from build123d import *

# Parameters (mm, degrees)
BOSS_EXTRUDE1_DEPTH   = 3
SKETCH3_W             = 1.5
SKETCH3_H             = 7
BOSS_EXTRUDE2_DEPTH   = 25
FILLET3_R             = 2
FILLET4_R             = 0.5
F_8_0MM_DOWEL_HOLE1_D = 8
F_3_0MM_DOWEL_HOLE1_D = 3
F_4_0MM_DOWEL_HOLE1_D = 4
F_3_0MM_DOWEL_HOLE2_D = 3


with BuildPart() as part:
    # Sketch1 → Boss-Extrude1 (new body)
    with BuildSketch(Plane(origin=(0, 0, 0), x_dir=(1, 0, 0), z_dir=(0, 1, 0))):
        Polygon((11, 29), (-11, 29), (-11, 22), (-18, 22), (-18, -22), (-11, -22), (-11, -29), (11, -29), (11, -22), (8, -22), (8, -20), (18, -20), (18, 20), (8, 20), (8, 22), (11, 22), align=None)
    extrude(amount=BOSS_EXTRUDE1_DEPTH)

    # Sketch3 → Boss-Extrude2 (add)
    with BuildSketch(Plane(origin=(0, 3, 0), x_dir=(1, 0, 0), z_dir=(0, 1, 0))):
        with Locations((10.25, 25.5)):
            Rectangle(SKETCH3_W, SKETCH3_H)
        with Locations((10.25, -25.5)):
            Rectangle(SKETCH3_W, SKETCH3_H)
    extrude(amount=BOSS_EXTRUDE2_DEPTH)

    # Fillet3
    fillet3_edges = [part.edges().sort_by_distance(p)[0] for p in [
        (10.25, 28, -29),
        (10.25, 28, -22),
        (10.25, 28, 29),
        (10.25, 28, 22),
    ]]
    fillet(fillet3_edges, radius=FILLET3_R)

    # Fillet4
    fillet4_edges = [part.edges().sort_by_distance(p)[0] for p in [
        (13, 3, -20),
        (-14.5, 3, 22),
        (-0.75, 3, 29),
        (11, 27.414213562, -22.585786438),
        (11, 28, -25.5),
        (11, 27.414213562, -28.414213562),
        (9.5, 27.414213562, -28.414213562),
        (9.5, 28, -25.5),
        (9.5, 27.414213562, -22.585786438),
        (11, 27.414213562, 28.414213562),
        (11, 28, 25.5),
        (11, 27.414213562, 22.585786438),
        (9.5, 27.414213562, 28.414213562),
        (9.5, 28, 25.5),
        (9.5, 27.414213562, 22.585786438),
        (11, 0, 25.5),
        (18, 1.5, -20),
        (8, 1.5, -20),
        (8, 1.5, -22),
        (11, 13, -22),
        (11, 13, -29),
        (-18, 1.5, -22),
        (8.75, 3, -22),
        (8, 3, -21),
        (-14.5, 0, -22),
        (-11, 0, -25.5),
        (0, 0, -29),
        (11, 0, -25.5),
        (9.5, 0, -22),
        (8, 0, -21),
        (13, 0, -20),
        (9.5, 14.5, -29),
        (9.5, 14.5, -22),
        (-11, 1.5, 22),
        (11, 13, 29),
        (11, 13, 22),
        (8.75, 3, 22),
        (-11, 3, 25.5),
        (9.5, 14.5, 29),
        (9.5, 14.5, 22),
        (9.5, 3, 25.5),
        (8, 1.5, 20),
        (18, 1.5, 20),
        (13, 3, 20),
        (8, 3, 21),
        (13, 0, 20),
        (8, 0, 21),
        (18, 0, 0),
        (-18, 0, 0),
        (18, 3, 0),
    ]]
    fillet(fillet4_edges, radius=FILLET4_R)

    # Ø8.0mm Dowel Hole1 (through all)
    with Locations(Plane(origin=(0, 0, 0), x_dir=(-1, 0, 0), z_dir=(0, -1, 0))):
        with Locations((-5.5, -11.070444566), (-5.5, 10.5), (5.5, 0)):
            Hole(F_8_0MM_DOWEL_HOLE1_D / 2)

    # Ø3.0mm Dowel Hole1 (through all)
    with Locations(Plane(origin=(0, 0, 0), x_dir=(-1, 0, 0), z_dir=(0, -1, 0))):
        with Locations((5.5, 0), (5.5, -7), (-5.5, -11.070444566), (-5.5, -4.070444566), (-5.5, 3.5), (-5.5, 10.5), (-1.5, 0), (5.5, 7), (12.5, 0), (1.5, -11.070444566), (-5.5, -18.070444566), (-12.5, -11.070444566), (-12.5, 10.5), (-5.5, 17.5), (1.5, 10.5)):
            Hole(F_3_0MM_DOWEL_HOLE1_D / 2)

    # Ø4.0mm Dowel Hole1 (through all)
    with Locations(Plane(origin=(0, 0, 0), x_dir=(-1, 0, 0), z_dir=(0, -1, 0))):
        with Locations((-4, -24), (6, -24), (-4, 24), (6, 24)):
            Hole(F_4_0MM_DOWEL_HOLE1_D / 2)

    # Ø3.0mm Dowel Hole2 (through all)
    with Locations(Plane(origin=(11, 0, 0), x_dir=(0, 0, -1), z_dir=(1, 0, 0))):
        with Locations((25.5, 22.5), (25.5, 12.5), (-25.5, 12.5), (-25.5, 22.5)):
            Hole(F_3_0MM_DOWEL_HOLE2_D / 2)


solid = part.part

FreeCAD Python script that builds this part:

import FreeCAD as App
import Part
import Sketcher

V = App.Vector
Q = App.Units.Quantity


def edges_at(feature, points):
    """Names of the edges that pass closest to the given points."""
    edges = feature.Shape.Edges
    near = lambda p: min(range(len(edges)), key=lambda i: edges[i].distToShape(Part.Vertex(*p))[0])
    return sorted({f"Edge{near(p) + 1}" for p in points})

doc = App.newDocument("Part")
body = doc.addObject("PartDesign::Body", "Body")

# Sketch on XZ plane
sketch1 = body.newObject("Sketcher::SketchObject", "Sketch")
sketch1.AttachmentSupport = (doc.getObject("XZ_Plane"), [""])
sketch1.MapMode = "FlatFace"
sketch1.addGeometry(Part.LineSegment(V(11, -29, 0), V(-11, -29, 0)), False)
sketch1.addGeometry(Part.LineSegment(V(-11, -29, 0), V(-11, -22, 0)), False)
sketch1.addGeometry(Part.LineSegment(V(-11, -22, 0), V(-18, -22, 0)), False)
sketch1.addGeometry(Part.LineSegment(V(-18, -22, 0), V(-18, 22, 0)), False)
sketch1.addGeometry(Part.LineSegment(V(-18, 22, 0), V(-11, 22, 0)), False)
sketch1.addGeometry(Part.LineSegment(V(-11, 22, 0), V(-11, 29, 0)), False)
sketch1.addGeometry(Part.LineSegment(V(-11, 29, 0), V(11, 29, 0)), False)
sketch1.addGeometry(Part.LineSegment(V(11, 29, 0), V(11, 22, 0)), False)
sketch1.addGeometry(Part.LineSegment(V(11, 22, 0), V(8, 22, 0)), False)
sketch1.addGeometry(Part.LineSegment(V(8, 22, 0), V(8, 20, 0)), False)
sketch1.addGeometry(Part.LineSegment(V(8, 20, 0), V(18, 20, 0)), False)
sketch1.addGeometry(Part.LineSegment(V(18, 20, 0), V(18, -20, 0)), False)
sketch1.addGeometry(Part.LineSegment(V(18, -20, 0), V(8, -20, 0)), False)
sketch1.addGeometry(Part.LineSegment(V(8, -20, 0), V(8, -22, 0)), False)
sketch1.addGeometry(Part.LineSegment(V(8, -22, 0), V(11, -22, 0)), False)
sketch1.addGeometry(Part.LineSegment(V(11, -22, 0), V(11, -29, 0)), False)
sketch1.addConstraint(Sketcher.Constraint("Coincident", 0, 2, 1, 1))
sketch1.addConstraint(Sketcher.Constraint("Coincident", 1, 2, 2, 1))
sketch1.addConstraint(Sketcher.Constraint("Coincident", 2, 2, 3, 1))
sketch1.addConstraint(Sketcher.Constraint("Coincident", 3, 2, 4, 1))
sketch1.addConstraint(Sketcher.Constraint("Coincident", 4, 2, 5, 1))
sketch1.addConstraint(Sketcher.Constraint("Coincident", 5, 2, 6, 1))
sketch1.addConstraint(Sketcher.Constraint("Coincident", 6, 2, 7, 1))
sketch1.addConstraint(Sketcher.Constraint("Coincident", 7, 2, 8, 1))
sketch1.addConstraint(Sketcher.Constraint("Coincident", 8, 2, 9, 1))
sketch1.addConstraint(Sketcher.Constraint("Coincident", 9, 2, 10, 1))
sketch1.addConstraint(Sketcher.Constraint("Coincident", 10, 2, 11, 1))
sketch1.addConstraint(Sketcher.Constraint("Coincident", 11, 2, 12, 1))
sketch1.addConstraint(Sketcher.Constraint("Coincident", 12, 2, 13, 1))
sketch1.addConstraint(Sketcher.Constraint("Coincident", 13, 2, 14, 1))
sketch1.addConstraint(Sketcher.Constraint("Coincident", 14, 2, 15, 1))
sketch1.addConstraint(Sketcher.Constraint("Coincident", 15, 2, 0, 1))
sketch1.addConstraint(Sketcher.Constraint("Horizontal", 0))
sketch1.addConstraint(Sketcher.Constraint("Vertical", 1))
sketch1.addConstraint(Sketcher.Constraint("Horizontal", 2))
sketch1.addConstraint(Sketcher.Constraint("Vertical", 3))
sketch1.addConstraint(Sketcher.Constraint("Horizontal", 4))
sketch1.addConstraint(Sketcher.Constraint("Vertical", 5))
sketch1.addConstraint(Sketcher.Constraint("Horizontal", 6))
sketch1.addConstraint(Sketcher.Constraint("Vertical", 7))
sketch1.addConstraint(Sketcher.Constraint("Horizontal", 8))
sketch1.addConstraint(Sketcher.Constraint("Vertical", 9))
sketch1.addConstraint(Sketcher.Constraint("Horizontal", 10))
sketch1.addConstraint(Sketcher.Constraint("Vertical", 11))
sketch1.addConstraint(Sketcher.Constraint("Horizontal", 12))
sketch1.addConstraint(Sketcher.Constraint("Vertical", 13))
sketch1.addConstraint(Sketcher.Constraint("Horizontal", 14))
sketch1.addConstraint(Sketcher.Constraint("Vertical", 15))
sketch1.addConstraint(Sketcher.Constraint("Symmetric", 0, 2, 6, 2, -1, 1))
sketch1.addConstraint(Sketcher.Constraint("Symmetric", 4, 2, 14, 2, -1, 1))
sketch1.addConstraint(Sketcher.Constraint("Symmetric", 4, 2, 7, 2, -2))
sketch1.addConstraint(Sketcher.Constraint("Symmetric", 9, 2, 12, 2, -1))
sketch1.addConstraint(Sketcher.Constraint("Horizontal", 2, 2, 13, 2))
sketch1.addConstraint(Sketcher.Constraint("Equal", 4, 1))
sketch1.addConstraint(Sketcher.Constraint("DistanceX", 0, 2, 0, 1, Q("22 mm")))
sketch1.addConstraint(Sketcher.Constraint("DistanceX", 2, 2, 2, 1, Q("7 mm")))
sketch1.addConstraint(Sketcher.Constraint("DistanceX", 8, 2, 8, 1, Q("3 mm")))
sketch1.addConstraint(Sketcher.Constraint("DistanceX", 10, 1, 10, 2, Q("10 mm")))
sketch1.addConstraint(Sketcher.Constraint("DistanceY", 3, 1, 3, 2, Q("44 mm")))
sketch1.addConstraint(Sketcher.Constraint("DistanceY", 9, 2, 9, 1, Q("2 mm")))
pad1 = body.newObject("PartDesign::Pad", "Pad")
pad1.Profile = sketch1
pad1.Length = 3
pad1.Reversed = True

# Sketch on XZ plane
sketch2 = body.newObject("Sketcher::SketchObject", "Sketch001")
sketch2.AttachmentSupport = (doc.getObject("XZ_Plane"), [""])
sketch2.MapMode = "FlatFace"
sketch2.AttachmentOffset = App.Placement(V(0, 0, -3), App.Rotation())
sketch2.addGeometry(Part.LineSegment(V(9.5, -29, 0), V(9.5, -22, 0)), False)
sketch2.addGeometry(Part.LineSegment(V(9.5, -22, 0), V(11, -22, 0)), False)
sketch2.addGeometry(Part.LineSegment(V(11, -22, 0), V(11, -29, 0)), False)
sketch2.addGeometry(Part.LineSegment(V(11, -29, 0), V(9.5, -29, 0)), False)
sketch2.addGeometry(Part.LineSegment(V(9.5, 22, 0), V(9.5, 29, 0)), False)
sketch2.addGeometry(Part.LineSegment(V(9.5, 29, 0), V(11, 29, 0)), False)
sketch2.addGeometry(Part.LineSegment(V(11, 29, 0), V(11, 22, 0)), False)
sketch2.addGeometry(Part.LineSegment(V(11, 22, 0), V(9.5, 22, 0)), False)
sketch2.addConstraint(Sketcher.Constraint("Coincident", 0, 2, 1, 1))
sketch2.addConstraint(Sketcher.Constraint("Coincident", 1, 2, 2, 1))
sketch2.addConstraint(Sketcher.Constraint("Coincident", 2, 2, 3, 1))
sketch2.addConstraint(Sketcher.Constraint("Coincident", 3, 2, 0, 1))
sketch2.addConstraint(Sketcher.Constraint("Coincident", 4, 2, 5, 1))
sketch2.addConstraint(Sketcher.Constraint("Coincident", 5, 2, 6, 1))
sketch2.addConstraint(Sketcher.Constraint("Coincident", 6, 2, 7, 1))
sketch2.addConstraint(Sketcher.Constraint("Coincident", 7, 2, 4, 1))
sketch2.addConstraint(Sketcher.Constraint("Vertical", 0))
sketch2.addConstraint(Sketcher.Constraint("Horizontal", 1))
sketch2.addConstraint(Sketcher.Constraint("Vertical", 2))
sketch2.addConstraint(Sketcher.Constraint("Horizontal", 3))
sketch2.addConstraint(Sketcher.Constraint("Vertical", 4))
sketch2.addConstraint(Sketcher.Constraint("Horizontal", 5))
sketch2.addConstraint(Sketcher.Constraint("Vertical", 6))
sketch2.addConstraint(Sketcher.Constraint("Horizontal", 7))
sketch2.addConstraint(Sketcher.Constraint("Symmetric", 3, 2, 4, 2, -1))
sketch2.addConstraint(Sketcher.Constraint("Symmetric", 1, 2, 6, 2, -1))
sketch2.addConstraint(Sketcher.Constraint("DistanceY", 0, 1, 0, 2, Q("7 mm")))
sketch2.addConstraint(Sketcher.Constraint("DistanceX", 1, 1, 1, 2, Q("1.5 mm")))
sketch2.addConstraint(Sketcher.Constraint("DistanceY", 0, 2, -1, 1, Q("22 mm")))
sketch2.addConstraint(Sketcher.Constraint("DistanceX", -1, 1, 1, 2, Q("11 mm")))
pad2 = body.newObject("PartDesign::Pad", "Pad001")
pad2.Profile = sketch2
pad2.Length = 25
pad2.Reversed = True
doc.recompute()

fillet = body.newObject("PartDesign::Fillet", "Fillet")
fillet.Base = (pad2, edges_at(pad2, [
    (10.25, 28, -29),
    (10.25, 28, -22),
    (10.25, 28, 29),
    (10.25, 28, 22),
]))
fillet.Radius = 2
doc.recompute()

fillet2 = body.newObject("PartDesign::Fillet", "Fillet001")
fillet2.Base = (fillet, edges_at(fillet, [
    (13, 3, -20),
    (-14.5, 3, 22),
    (-0.75, 3, 29),
    (11, 27.414, -22.586),
    (11, 28, -25.5),
    (11, 27.414, -28.414),
    (9.5, 27.414, -28.414),
    (9.5, 28, -25.5),
    (9.5, 27.414, -22.586),
    (11, 27.414, 28.414),
    (11, 28, 25.5),
    (11, 27.414, 22.586),
    (9.5, 27.414, 28.414),
    (9.5, 28, 25.5),
    (9.5, 27.414, 22.586),
    (11, 0, 25.5),
    (18, 1.5, -20),
    (8, 1.5, -20),
    (8, 1.5, -22),
    (11, 13, -22),
    (11, 13, -29),
    (-18, 1.5, -22),
    (8.75, 3, -22),
    (8, 3, -21),
    (-14.5, 0, -22),
    (-11, 0, -25.5),
    (0, 0, -29),
    (11, 0, -25.5),
    (9.5, 0, -22),
    (8, 0, -21),
    (13, 0, -20),
    (9.5, 14.5, -29),
    (9.5, 14.5, -22),
    (-11, 1.5, 22),
    (11, 13, 29),
    (11, 13, 22),
    (8.75, 3, 22),
    (-11, 3, 25.5),
    (9.5, 14.5, 29),
    (9.5, 14.5, 22),
    (9.5, 3, 25.5),
    (8, 1.5, 20),
    (18, 1.5, 20),
    (13, 3, 20),
    (8, 3, 21),
    (13, 0, 20),
    (8, 0, 21),
    (18, 0, 0),
    (-18, 0, 0),
    (18, 3, 0),
]))
fillet2.Radius = 0.5

# Sketch on XZ plane
sketch3 = body.newObject("Sketcher::SketchObject", "Sketch002")
sketch3.AttachmentSupport = (doc.getObject("XZ_Plane"), [""])
sketch3.MapMode = "FlatFace"
sketch3.addGeometry(Part.Circle(V(5.5, 11.1, 0), V(0, 0, 1), 4), False)
sketch3.addGeometry(Part.Circle(V(5.5, -10.5, 0), V(0, 0, 1), 4), False)
sketch3.addGeometry(Part.Circle(V(-5.5, 0, 0), V(0, 0, 1), 4), False)
sketch3.addConstraint(Sketcher.Constraint("Equal", 0, 1))
sketch3.addConstraint(Sketcher.Constraint("Equal", 1, 2))
sketch3.addConstraint(Sketcher.Constraint("PointOnObject", 2, 3, -1))
sketch3.addConstraint(Sketcher.Constraint("Vertical", 0, 3, 1, 3))
sketch3.addConstraint(Sketcher.Constraint("Diameter", 0, Q("8 mm")))
sketch3.addConstraint(Sketcher.Constraint("DistanceX", 2, 3, 1, 3, Q("11 mm")))
sketch3.addConstraint(Sketcher.Constraint("DistanceX", -1, 1, 0, 3, Q("5.5 mm")))
sketch3.addConstraint(Sketcher.Constraint("DistanceY", 1, 3, -1, 1, Q("10.5 mm")))
sketch3.addConstraint(Sketcher.Constraint("DistanceY", -1, 1, 0, 3, Q("11.070445 mm")))
doc.recompute()
hole = body.newObject("PartDesign::Hole", "Hole")
hole.Profile = sketch3
hole.ThreadType = "None"
hole.Diameter = 8
hole.DepthType = "ThroughAll"

# Sketch on XZ plane
sketch4 = body.newObject("Sketcher::SketchObject", "Sketch003")
sketch4.AttachmentSupport = (doc.getObject("XZ_Plane"), [""])
sketch4.MapMode = "FlatFace"
sketch4.addGeometry(Part.Circle(V(-5.5, 0, 0), V(0, 0, 1), 1.5), False)
sketch4.addGeometry(Part.Circle(V(-5.5, 7, 0), V(0, 0, 1), 1.5), False)
sketch4.addGeometry(Part.Circle(V(5.5, 11.1, 0), V(0, 0, 1), 1.5), False)
sketch4.addGeometry(Part.Circle(V(5.5, 4.1, 0), V(0, 0, 1), 1.5), False)
sketch4.addGeometry(Part.Circle(V(5.5, -3.5, 0), V(0, 0, 1), 1.5), False)
sketch4.addGeometry(Part.Circle(V(5.5, -10.5, 0), V(0, 0, 1), 1.5), False)
sketch4.addGeometry(Part.Circle(V(1.5, 0, 0), V(0, 0, 1), 1.5), False)
sketch4.addGeometry(Part.Circle(V(-5.5, -7, 0), V(0, 0, 1), 1.5), False)
sketch4.addGeometry(Part.Circle(V(-12.5, 0, 0), V(0, 0, 1), 1.5), False)
sketch4.addGeometry(Part.Circle(V(-1.5, 11.1, 0), V(0, 0, 1), 1.5), False)
sketch4.addGeometry(Part.Circle(V(5.5, 18.1, 0), V(0, 0, 1), 1.5), False)
sketch4.addGeometry(Part.Circle(V(12.5, 11.1, 0), V(0, 0, 1), 1.5), False)
sketch4.addGeometry(Part.Circle(V(12.5, -10.5, 0), V(0, 0, 1), 1.5), False)
sketch4.addGeometry(Part.Circle(V(5.5, -17.5, 0), V(0, 0, 1), 1.5), False)
sketch4.addGeometry(Part.Circle(V(-1.5, -10.5, 0), V(0, 0, 1), 1.5), False)
sketch4.addConstraint(Sketcher.Constraint("Equal", 0, 1))
sketch4.addConstraint(Sketcher.Constraint("Equal", 1, 2))
sketch4.addConstraint(Sketcher.Constraint("Equal", 2, 3))
sketch4.addConstraint(Sketcher.Constraint("Equal", 3, 4))
sketch4.addConstraint(Sketcher.Constraint("Equal", 4, 5))
sketch4.addConstraint(Sketcher.Constraint("Equal", 5, 6))
sketch4.addConstraint(Sketcher.Constraint("Equal", 6, 7))
sketch4.addConstraint(Sketcher.Constraint("Equal", 7, 8))
sketch4.addConstraint(Sketcher.Constraint("Equal", 8, 9))
sketch4.addConstraint(Sketcher.Constraint("Equal", 9, 10))
sketch4.addConstraint(Sketcher.Constraint("Equal", 10, 11))
sketch4.addConstraint(Sketcher.Constraint("Equal", 11, 12))
sketch4.addConstraint(Sketcher.Constraint("Equal", 12, 13))
sketch4.addConstraint(Sketcher.Constraint("Equal", 13, 14))
sketch4.addConstraint(Sketcher.Constraint("Symmetric", 1, 3, 7, 3, -1))
sketch4.addConstraint(Sketcher.Constraint("PointOnObject", 0, 3, -1))
sketch4.addConstraint(Sketcher.Constraint("PointOnObject", 6, 3, -1))
sketch4.addConstraint(Sketcher.Constraint("PointOnObject", 8, 3, -1))
sketch4.addConstraint(Sketcher.Constraint("Horizontal", 2, 3, 9, 3))
sketch4.addConstraint(Sketcher.Constraint("Horizontal", 9, 3, 11, 3))
sketch4.addConstraint(Sketcher.Constraint("Horizontal", 5, 3, 12, 3))
sketch4.addConstraint(Sketcher.Constraint("Horizontal", 12, 3, 14, 3))
sketch4.addConstraint(Sketcher.Constraint("Vertical", 0, 3, 1, 3))
sketch4.addConstraint(Sketcher.Constraint("Vertical", 2, 3, 3, 3))
sketch4.addConstraint(Sketcher.Constraint("Vertical", 3, 3, 4, 3))
sketch4.addConstraint(Sketcher.Constraint("Vertical", 4, 3, 5, 3))
sketch4.addConstraint(Sketcher.Constraint("Vertical", 5, 3, 10, 3))
sketch4.addConstraint(Sketcher.Constraint("Vertical", 11, 3, 12, 3))
sketch4.addConstraint(Sketcher.Constraint("Vertical", 10, 3, 13, 3))
sketch4.addConstraint(Sketcher.Constraint("Vertical", 9, 3, 14, 3))
sketch4.addConstraint(Sketcher.Constraint("Diameter", 0, Q("3 mm")))
sketch4.addConstraint(Sketcher.Constraint("DistanceY", -1, 1, 1, 3, Q("7 mm")))
sketch4.addConstraint(Sketcher.Constraint("DistanceX", 1, 3, 2, 3, Q("11 mm")))
sketch4.addConstraint(Sketcher.Constraint("DistanceY", 3, 3, 2, 3, Q("7 mm")))
sketch4.addConstraint(Sketcher.Constraint("DistanceY", 5, 3, 4, 3, Q("7 mm")))
sketch4.addConstraint(Sketcher.Constraint("DistanceX", 6, 3, 4, 3, Q("4 mm")))
sketch4.addConstraint(Sketcher.Constraint("DistanceX", 8, 3, 0, 3, Q("7 mm")))
sketch4.addConstraint(Sketcher.Constraint("DistanceX", 1, 3, 9, 3, Q("4 mm")))
sketch4.addConstraint(Sketcher.Constraint("DistanceY", 2, 3, 10, 3, Q("7 mm")))
sketch4.addConstraint(Sketcher.Constraint("DistanceX", 2, 3, 11, 3, Q("7 mm")))
sketch4.addConstraint(Sketcher.Constraint("DistanceY", 13, 3, 5, 3, Q("7 mm")))
sketch4.addConstraint(Sketcher.Constraint("DistanceX", 0, 3, -1, 1, Q("5.5 mm")))
sketch4.addConstraint(Sketcher.Constraint("DistanceY", 4, 3, -1, 1, Q("3.5 mm")))
sketch4.addConstraint(Sketcher.Constraint("DistanceY", -1, 1, 2, 3, Q("11.070445 mm")))
doc.recompute()
hole2 = body.newObject("PartDesign::Hole", "Hole001")
hole2.Profile = sketch4
hole2.ThreadType = "None"
hole2.Diameter = 3
hole2.DepthType = "ThroughAll"

# Sketch on XZ plane
sketch5 = body.newObject("Sketcher::SketchObject", "Sketch004")
sketch5.AttachmentSupport = (doc.getObject("XZ_Plane"), [""])
sketch5.MapMode = "FlatFace"
sketch5.addGeometry(Part.Circle(V(4, 24, 0), V(0, 0, 1), 2), False)
sketch5.addGeometry(Part.Circle(V(-6, 24, 0), V(0, 0, 1), 2), False)
sketch5.addGeometry(Part.Circle(V(4, -24, 0), V(0, 0, 1), 2), False)
sketch5.addGeometry(Part.Circle(V(-6, -24, 0), V(0, 0, 1), 2), False)
sketch5.addConstraint(Sketcher.Constraint("Equal", 0, 1))
sketch5.addConstraint(Sketcher.Constraint("Equal", 1, 2))
sketch5.addConstraint(Sketcher.Constraint("Equal", 2, 3))
sketch5.addConstraint(Sketcher.Constraint("Symmetric", 0, 3, 2, 3, -1))
sketch5.addConstraint(Sketcher.Constraint("Symmetric", 1, 3, 3, 3, -1))
sketch5.addConstraint(Sketcher.Constraint("Horizontal", 0, 3, 1, 3))
sketch5.addConstraint(Sketcher.Constraint("Diameter", 0, Q("4 mm")))
sketch5.addConstraint(Sketcher.Constraint("DistanceX", -1, 1, 0, 3, Q("4 mm")))
sketch5.addConstraint(Sketcher.Constraint("DistanceY", -1, 1, 0, 3, Q("24 mm")))
sketch5.addConstraint(Sketcher.Constraint("DistanceX", 1, 3, -1, 1, Q("6 mm")))
doc.recompute()
hole3 = body.newObject("PartDesign::Hole", "Hole002")
hole3.Profile = sketch5
hole3.ThreadType = "None"
hole3.Diameter = 4
hole3.DepthType = "ThroughAll"

# Sketch on YZ plane
sketch6 = body.newObject("Sketcher::SketchObject", "Sketch005")
sketch6.AttachmentSupport = (doc.getObject("YZ_Plane"), [""])
sketch6.MapMode = "FlatFace"
sketch6.AttachmentOffset = App.Placement(V(0, 0, 11), App.Rotation())
sketch6.addGeometry(Part.Circle(V(22.5, -25.5, 0), V(0, 0, 1), 1.5), False)
sketch6.addGeometry(Part.Circle(V(12.5, -25.5, 0), V(0, 0, 1), 1.5), False)
sketch6.addGeometry(Part.Circle(V(12.5, 25.5, 0), V(0, 0, 1), 1.5), False)
sketch6.addGeometry(Part.Circle(V(22.5, 25.5, 0), V(0, 0, 1), 1.5), False)
sketch6.addConstraint(Sketcher.Constraint("Equal", 0, 1))
sketch6.addConstraint(Sketcher.Constraint("Equal", 1, 2))
sketch6.addConstraint(Sketcher.Constraint("Equal", 2, 3))
sketch6.addConstraint(Sketcher.Constraint("Symmetric", 1, 3, 2, 3, -1))
sketch6.addConstraint(Sketcher.Constraint("Symmetric", 0, 3, 3, 3, -1))
sketch6.addConstraint(Sketcher.Constraint("Horizontal", 0, 3, 1, 3))
sketch6.addConstraint(Sketcher.Constraint("Diameter", 0, Q("3 mm")))
sketch6.addConstraint(Sketcher.Constraint("DistanceX", 1, 3, 0, 3, Q("10 mm")))
sketch6.addConstraint(Sketcher.Constraint("DistanceY", 1, 3, 2, 3, Q("51 mm")))
sketch6.addConstraint(Sketcher.Constraint("DistanceX", -1, 1, 0, 3, Q("22.5 mm")))
doc.recompute()
hole4 = body.newObject("PartDesign::Hole", "Hole003")
hole4.Profile = sketch6
hole4.ThreadType = "None"
hole4.Diameter = 3
hole4.DepthType = "ThroughAll"

doc.recompute()
